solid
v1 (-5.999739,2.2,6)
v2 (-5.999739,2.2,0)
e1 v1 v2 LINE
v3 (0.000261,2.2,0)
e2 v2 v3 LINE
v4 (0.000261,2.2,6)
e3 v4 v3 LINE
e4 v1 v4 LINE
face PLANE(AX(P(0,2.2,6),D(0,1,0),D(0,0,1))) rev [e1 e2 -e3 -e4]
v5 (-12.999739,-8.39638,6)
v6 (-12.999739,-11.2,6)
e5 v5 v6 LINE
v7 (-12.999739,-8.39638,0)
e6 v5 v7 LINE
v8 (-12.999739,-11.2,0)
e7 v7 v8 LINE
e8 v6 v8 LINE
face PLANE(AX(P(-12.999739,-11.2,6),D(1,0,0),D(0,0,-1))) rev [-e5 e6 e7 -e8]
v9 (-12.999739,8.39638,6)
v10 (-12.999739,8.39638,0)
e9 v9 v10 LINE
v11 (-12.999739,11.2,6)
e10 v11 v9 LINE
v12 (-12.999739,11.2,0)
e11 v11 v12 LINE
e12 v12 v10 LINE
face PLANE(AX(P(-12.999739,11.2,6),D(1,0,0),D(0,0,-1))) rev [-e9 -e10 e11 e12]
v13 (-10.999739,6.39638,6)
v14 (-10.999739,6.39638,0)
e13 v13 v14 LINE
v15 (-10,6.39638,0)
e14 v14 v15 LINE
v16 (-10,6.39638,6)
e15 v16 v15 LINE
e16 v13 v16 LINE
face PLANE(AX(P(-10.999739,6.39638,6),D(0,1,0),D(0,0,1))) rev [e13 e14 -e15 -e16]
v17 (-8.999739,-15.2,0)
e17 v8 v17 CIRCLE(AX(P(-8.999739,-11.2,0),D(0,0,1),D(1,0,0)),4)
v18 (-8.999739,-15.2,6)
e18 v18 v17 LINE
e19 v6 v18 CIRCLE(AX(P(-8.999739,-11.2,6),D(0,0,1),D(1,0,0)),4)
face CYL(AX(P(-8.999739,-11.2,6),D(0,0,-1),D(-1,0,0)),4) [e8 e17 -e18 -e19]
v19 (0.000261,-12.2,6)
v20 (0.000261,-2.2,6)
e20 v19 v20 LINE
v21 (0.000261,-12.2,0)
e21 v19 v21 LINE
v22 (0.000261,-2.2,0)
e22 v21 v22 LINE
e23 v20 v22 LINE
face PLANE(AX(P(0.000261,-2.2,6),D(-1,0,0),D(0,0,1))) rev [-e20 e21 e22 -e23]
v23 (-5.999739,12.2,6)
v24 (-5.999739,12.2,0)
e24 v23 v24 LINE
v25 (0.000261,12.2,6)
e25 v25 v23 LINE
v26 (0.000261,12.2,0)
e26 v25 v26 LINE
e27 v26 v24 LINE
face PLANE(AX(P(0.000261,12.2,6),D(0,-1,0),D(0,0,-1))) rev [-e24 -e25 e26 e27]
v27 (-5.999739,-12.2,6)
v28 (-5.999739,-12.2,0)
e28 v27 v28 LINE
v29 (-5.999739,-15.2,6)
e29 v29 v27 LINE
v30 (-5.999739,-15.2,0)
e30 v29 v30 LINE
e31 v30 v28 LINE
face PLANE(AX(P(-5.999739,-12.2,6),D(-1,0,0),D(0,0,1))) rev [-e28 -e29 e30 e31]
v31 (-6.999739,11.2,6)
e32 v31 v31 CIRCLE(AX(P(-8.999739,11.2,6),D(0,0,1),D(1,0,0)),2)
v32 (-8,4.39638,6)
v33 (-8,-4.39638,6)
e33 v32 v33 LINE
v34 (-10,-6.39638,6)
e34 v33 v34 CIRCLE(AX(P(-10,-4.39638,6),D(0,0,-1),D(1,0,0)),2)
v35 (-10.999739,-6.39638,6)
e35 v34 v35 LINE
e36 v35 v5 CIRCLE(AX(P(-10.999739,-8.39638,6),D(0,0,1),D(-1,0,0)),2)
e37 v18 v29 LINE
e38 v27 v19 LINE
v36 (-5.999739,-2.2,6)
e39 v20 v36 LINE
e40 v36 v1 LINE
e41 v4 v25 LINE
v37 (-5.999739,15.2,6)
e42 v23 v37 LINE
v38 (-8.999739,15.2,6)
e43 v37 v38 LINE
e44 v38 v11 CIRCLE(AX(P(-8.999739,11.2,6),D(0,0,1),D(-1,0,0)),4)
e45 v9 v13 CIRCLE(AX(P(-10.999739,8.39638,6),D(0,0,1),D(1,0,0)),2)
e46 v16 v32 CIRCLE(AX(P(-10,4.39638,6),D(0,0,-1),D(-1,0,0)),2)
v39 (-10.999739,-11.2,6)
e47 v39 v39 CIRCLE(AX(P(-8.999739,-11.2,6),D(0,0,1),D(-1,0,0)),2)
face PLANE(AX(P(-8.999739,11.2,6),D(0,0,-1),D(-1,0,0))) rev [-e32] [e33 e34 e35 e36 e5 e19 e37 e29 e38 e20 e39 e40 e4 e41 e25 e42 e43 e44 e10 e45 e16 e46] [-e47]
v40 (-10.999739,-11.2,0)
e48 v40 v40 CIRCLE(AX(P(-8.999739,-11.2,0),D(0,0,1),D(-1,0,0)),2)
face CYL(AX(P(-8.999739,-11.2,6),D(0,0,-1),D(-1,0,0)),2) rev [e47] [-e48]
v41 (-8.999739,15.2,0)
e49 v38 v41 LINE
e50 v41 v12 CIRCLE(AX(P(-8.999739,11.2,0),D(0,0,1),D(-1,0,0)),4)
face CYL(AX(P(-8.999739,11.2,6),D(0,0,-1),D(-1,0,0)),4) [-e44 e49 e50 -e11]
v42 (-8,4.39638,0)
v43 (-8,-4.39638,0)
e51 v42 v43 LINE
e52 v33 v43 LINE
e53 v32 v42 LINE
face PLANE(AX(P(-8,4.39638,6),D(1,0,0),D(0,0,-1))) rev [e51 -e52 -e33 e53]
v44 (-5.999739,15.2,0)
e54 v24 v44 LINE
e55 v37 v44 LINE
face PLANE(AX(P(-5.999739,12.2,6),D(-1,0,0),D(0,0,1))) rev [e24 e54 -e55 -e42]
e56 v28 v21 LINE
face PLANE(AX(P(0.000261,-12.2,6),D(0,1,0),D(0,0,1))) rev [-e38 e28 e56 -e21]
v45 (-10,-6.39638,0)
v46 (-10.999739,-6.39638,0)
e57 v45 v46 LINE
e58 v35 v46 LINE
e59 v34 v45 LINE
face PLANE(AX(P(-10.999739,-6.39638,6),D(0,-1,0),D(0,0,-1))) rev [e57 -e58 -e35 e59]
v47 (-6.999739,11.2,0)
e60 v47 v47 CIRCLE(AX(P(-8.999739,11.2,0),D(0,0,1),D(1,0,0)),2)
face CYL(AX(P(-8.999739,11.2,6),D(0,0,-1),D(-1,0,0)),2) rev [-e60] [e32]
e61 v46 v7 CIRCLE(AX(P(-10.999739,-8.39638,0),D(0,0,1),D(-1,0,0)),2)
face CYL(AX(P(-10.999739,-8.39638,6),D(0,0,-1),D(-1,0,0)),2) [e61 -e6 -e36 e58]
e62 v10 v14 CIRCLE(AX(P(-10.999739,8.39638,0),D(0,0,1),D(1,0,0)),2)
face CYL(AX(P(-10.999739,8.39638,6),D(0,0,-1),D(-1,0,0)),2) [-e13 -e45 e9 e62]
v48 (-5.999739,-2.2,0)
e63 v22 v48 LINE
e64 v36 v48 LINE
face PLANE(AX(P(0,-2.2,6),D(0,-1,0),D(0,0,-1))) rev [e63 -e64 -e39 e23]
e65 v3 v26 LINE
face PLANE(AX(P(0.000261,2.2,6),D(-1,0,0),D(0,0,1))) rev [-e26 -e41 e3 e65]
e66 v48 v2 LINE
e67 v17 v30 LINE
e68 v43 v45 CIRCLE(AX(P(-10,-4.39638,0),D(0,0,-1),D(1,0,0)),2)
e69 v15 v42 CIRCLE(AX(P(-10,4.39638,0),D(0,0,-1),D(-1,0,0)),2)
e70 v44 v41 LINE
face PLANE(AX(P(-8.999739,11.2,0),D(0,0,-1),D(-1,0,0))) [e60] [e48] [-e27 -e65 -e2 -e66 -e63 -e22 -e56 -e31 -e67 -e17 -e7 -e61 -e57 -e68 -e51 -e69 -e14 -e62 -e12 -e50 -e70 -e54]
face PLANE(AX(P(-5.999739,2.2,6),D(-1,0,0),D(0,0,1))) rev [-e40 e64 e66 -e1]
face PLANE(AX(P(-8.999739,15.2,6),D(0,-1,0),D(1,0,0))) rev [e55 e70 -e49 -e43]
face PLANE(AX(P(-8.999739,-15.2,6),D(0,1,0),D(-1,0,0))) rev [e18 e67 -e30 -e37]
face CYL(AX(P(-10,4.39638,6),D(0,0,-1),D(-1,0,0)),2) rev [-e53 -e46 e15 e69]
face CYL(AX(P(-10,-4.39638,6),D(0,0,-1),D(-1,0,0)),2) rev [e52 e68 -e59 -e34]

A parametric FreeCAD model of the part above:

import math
import FreeCAD as App
import Part
import Sketcher
from FreeCAD import Vector
Q = App.Units.Quantity

doc = App.newDocument("Part")
body = doc.addObject("PartDesign::Body", "Body")

sketch1 = body.newObject("Sketcher::SketchObject", "Sketch")
sketch1.AttachmentSupport = (doc.getObject("XY_Plane"), [""])
sketch1.MapMode = "FlatFace"
sketch1.addGeometry([
    Part.LineSegment(Vector(-6, 15.2, 0), Vector(-9, 15.2, 0)),
    Part.ArcOfCircle(Part.Circle(Vector(-9, 11.2, 0), Vector(0, 0, 1), 4), math.radians(90), math.radians(180)),
    Part.LineSegment(Vector(-13, 11.2, 0), Vector(-13, 8.4, 0)),
    Part.ArcOfCircle(Part.Circle(Vector(-11, 8.4, 0), Vector(0, 0, 1), 2), math.radians(-180), math.radians(-90)),
    Part.LineSegment(Vector(-11, 6.4, 0), Vector(-10, 6.4, 0)),
    Part.ArcOfCircle(Part.Circle(Vector(-10, 4.4, 0), Vector(0, 0, 1), 2), math.radians(0), math.radians(90)),
    Part.LineSegment(Vector(-8, 4.4, 0), Vector(-8, -4.4, 0)),
    Part.ArcOfCircle(Part.Circle(Vector(-10, -4.4, 0), Vector(0, 0, 1), 2), math.radians(-90), math.radians(0)),
    Part.LineSegment(Vector(-10, -6.4, 0), Vector(-11, -6.4, 0)),
    Part.ArcOfCircle(Part.Circle(Vector(-11, -8.4, 0), Vector(0, 0, 1), 2), math.radians(90), math.radians(180)),
    Part.LineSegment(Vector(-13, -8.4, 0), Vector(-13, -11.2, 0)),
    Part.ArcOfCircle(Part.Circle(Vector(-9, -11.2, 0), Vector(0, 0, 1), 4), math.radians(-180), math.radians(-90)),
    Part.LineSegment(Vector(-9, -15.2, 0), Vector(-6, -15.2, 0)),
    Part.LineSegment(Vector(-6, -15.2, 0), Vector(-6, -12.2, 0)),
    Part.LineSegment(Vector(-6, -12.2, 0), Vector(0, -12.2, 0)),
    Part.LineSegment(Vector(0, -12.2, 0), Vector(0, -2.2, 0)),
    Part.LineSegment(Vector(0, -2.2, 0), Vector(-6, -2.2, 0)),
    Part.LineSegment(Vector(-6, -2.2, 0), Vector(-6, 2.2, 0)),
    Part.LineSegment(Vector(-6, 2.2, 0), Vector(0, 2.2, 0)),
    Part.LineSegment(Vector(0, 2.2, 0), Vector(0, 12.2, 0)),
    Part.LineSegment(Vector(0, 12.2, 0), Vector(-6, 12.2, 0)),
    Part.LineSegment(Vector(-6, 12.2, 0), Vector(-6, 15.2, 0)),
    Part.Circle(Vector(-9, -11.2, 0), Vector(0, 0, 1), 2),
    Part.Circle(Vector(-9, 11.2, 0), Vector(0, 0, 1), 2),
], False)
sketch1.addConstraint([
    Sketcher.Constraint("Tangent", 0, 2, 1, 1),
    Sketcher.Constraint("Tangent", 1, 2, 2, 1),
    Sketcher.Constraint("Tangent", 2, 2, 3, 1),
    Sketcher.Constraint("Tangent", 3, 2, 4, 1),
    Sketcher.Constraint("Tangent", 4, 2, 5, 2),
    Sketcher.Constraint("Tangent", 5, 1, 6, 1),
    Sketcher.Constraint("Tangent", 6, 2, 7, 2),
    Sketcher.Constraint("Tangent", 7, 1, 8, 1),
    Sketcher.Constraint("Tangent", 8, 2, 9, 1),
    Sketcher.Constraint("Tangent", 9, 2, 10, 1),
    Sketcher.Constraint("Tangent", 10, 2, 11, 1),
    Sketcher.Constraint("Tangent", 11, 2, 12, 1),
    Sketcher.Constraint("Coincident", 12, 2, 13, 1),
    Sketcher.Constraint("Coincident", 13, 2, 14, 1),
    Sketcher.Constraint("Coincident", 14, 2, 15, 1),
    Sketcher.Constraint("Coincident", 15, 2, 16, 1),
    Sketcher.Constraint("Coincident", 16, 2, 17, 1),
    Sketcher.Constraint("Coincident", 17, 2, 18, 1),
    Sketcher.Constraint("Coincident", 18, 2, 19, 1),
    Sketcher.Constraint("Coincident", 19, 2, 20, 1),
    Sketcher.Constraint("Coincident", 20, 2, 21, 1),
    Sketcher.Constraint("Coincident", 21, 2, 0, 1),
    Sketcher.Constraint("Horizontal", 0),
    Sketcher.Constraint("Vertical", 2),
    Sketcher.Constraint("Horizontal", 4),
    Sketcher.Constraint("Vertical", 6),
    Sketcher.Constraint("Horizontal", 8),
    Sketcher.Constraint("Vertical", 10),
    Sketcher.Constraint("Horizontal", 12),
    Sketcher.Constraint("Vertical", 13),
    Sketcher.Constraint("Horizontal", 14),
    Sketcher.Constraint("Vertical", 15),
    Sketcher.Constraint("Horizontal", 16),
    Sketcher.Constraint("Vertical", 17),
    Sketcher.Constraint("Horizontal", 18),
    Sketcher.Constraint("Horizontal", 20),
    Sketcher.Constraint("Vertical", 21),
    Sketcher.Constraint("Coincident", 22, 3, 11, 3),
    Sketcher.Constraint("Coincident", 23, 3, 1, 3),
    Sketcher.Constraint("Equal", 3, 5),
    Sketcher.Constraint("Equal", 5, 7),
    Sketcher.Constraint("Equal", 7, 9),
    Sketcher.Constraint("Equal", 1, 11),
    Sketcher.Constraint("Equal", 9, 22),
    Sketcher.Constraint("Equal", 22, 23),
    Sketcher.Constraint("Symmetric", 3, 3, 9, 3, -1),
    Sketcher.Constraint("Symmetric", 14, 2, 19, 2, -1),
    Sketcher.Constraint("Symmetric", 12, 2, 21, 2, -1),
    Sketcher.Constraint("PointOnObject", 18, 2, -2),
    Sketcher.Constraint("Vertical", 13, 2, 16, 2),
    Sketcher.Constraint("Equal", 12, 13),
    Sketcher.Constraint("Diameter", 22, Q("4 mm")),
    Sketcher.Constraint("Radius", 1, Q("4 mm")),
    Sketcher.Constraint("DistanceX", 0, 2, 0, 1, Q("3 mm")),
    Sketcher.Constraint("DistanceX", 14, 1, 14, 2, Q("6 mm")),
    Sketcher.Constraint("DistanceY", 15, 1, 15, 2, Q("10 mm")),
    Sketcher.Constraint("Distance", 19, Q("10 mm")),
    Sketcher.Constraint("DistanceY", 17, 1, 17, 2, Q("4.4 mm")),
    Sketcher.Constraint("DistanceX", 5, 3, -1, 1, Q("10 mm")),
    Sketcher.Constraint("DistanceX", 4, 1, 4, 2, Q("0.999739 mm")),
    Sketcher.Constraint("DistanceY", 2, 2, 2, 1, Q("2.80362 mm")),
])
pad1 = body.newObject("PartDesign::Pad", "Pad")
pad1.Profile = sketch1
pad1.Length = 6

doc.recompute()
